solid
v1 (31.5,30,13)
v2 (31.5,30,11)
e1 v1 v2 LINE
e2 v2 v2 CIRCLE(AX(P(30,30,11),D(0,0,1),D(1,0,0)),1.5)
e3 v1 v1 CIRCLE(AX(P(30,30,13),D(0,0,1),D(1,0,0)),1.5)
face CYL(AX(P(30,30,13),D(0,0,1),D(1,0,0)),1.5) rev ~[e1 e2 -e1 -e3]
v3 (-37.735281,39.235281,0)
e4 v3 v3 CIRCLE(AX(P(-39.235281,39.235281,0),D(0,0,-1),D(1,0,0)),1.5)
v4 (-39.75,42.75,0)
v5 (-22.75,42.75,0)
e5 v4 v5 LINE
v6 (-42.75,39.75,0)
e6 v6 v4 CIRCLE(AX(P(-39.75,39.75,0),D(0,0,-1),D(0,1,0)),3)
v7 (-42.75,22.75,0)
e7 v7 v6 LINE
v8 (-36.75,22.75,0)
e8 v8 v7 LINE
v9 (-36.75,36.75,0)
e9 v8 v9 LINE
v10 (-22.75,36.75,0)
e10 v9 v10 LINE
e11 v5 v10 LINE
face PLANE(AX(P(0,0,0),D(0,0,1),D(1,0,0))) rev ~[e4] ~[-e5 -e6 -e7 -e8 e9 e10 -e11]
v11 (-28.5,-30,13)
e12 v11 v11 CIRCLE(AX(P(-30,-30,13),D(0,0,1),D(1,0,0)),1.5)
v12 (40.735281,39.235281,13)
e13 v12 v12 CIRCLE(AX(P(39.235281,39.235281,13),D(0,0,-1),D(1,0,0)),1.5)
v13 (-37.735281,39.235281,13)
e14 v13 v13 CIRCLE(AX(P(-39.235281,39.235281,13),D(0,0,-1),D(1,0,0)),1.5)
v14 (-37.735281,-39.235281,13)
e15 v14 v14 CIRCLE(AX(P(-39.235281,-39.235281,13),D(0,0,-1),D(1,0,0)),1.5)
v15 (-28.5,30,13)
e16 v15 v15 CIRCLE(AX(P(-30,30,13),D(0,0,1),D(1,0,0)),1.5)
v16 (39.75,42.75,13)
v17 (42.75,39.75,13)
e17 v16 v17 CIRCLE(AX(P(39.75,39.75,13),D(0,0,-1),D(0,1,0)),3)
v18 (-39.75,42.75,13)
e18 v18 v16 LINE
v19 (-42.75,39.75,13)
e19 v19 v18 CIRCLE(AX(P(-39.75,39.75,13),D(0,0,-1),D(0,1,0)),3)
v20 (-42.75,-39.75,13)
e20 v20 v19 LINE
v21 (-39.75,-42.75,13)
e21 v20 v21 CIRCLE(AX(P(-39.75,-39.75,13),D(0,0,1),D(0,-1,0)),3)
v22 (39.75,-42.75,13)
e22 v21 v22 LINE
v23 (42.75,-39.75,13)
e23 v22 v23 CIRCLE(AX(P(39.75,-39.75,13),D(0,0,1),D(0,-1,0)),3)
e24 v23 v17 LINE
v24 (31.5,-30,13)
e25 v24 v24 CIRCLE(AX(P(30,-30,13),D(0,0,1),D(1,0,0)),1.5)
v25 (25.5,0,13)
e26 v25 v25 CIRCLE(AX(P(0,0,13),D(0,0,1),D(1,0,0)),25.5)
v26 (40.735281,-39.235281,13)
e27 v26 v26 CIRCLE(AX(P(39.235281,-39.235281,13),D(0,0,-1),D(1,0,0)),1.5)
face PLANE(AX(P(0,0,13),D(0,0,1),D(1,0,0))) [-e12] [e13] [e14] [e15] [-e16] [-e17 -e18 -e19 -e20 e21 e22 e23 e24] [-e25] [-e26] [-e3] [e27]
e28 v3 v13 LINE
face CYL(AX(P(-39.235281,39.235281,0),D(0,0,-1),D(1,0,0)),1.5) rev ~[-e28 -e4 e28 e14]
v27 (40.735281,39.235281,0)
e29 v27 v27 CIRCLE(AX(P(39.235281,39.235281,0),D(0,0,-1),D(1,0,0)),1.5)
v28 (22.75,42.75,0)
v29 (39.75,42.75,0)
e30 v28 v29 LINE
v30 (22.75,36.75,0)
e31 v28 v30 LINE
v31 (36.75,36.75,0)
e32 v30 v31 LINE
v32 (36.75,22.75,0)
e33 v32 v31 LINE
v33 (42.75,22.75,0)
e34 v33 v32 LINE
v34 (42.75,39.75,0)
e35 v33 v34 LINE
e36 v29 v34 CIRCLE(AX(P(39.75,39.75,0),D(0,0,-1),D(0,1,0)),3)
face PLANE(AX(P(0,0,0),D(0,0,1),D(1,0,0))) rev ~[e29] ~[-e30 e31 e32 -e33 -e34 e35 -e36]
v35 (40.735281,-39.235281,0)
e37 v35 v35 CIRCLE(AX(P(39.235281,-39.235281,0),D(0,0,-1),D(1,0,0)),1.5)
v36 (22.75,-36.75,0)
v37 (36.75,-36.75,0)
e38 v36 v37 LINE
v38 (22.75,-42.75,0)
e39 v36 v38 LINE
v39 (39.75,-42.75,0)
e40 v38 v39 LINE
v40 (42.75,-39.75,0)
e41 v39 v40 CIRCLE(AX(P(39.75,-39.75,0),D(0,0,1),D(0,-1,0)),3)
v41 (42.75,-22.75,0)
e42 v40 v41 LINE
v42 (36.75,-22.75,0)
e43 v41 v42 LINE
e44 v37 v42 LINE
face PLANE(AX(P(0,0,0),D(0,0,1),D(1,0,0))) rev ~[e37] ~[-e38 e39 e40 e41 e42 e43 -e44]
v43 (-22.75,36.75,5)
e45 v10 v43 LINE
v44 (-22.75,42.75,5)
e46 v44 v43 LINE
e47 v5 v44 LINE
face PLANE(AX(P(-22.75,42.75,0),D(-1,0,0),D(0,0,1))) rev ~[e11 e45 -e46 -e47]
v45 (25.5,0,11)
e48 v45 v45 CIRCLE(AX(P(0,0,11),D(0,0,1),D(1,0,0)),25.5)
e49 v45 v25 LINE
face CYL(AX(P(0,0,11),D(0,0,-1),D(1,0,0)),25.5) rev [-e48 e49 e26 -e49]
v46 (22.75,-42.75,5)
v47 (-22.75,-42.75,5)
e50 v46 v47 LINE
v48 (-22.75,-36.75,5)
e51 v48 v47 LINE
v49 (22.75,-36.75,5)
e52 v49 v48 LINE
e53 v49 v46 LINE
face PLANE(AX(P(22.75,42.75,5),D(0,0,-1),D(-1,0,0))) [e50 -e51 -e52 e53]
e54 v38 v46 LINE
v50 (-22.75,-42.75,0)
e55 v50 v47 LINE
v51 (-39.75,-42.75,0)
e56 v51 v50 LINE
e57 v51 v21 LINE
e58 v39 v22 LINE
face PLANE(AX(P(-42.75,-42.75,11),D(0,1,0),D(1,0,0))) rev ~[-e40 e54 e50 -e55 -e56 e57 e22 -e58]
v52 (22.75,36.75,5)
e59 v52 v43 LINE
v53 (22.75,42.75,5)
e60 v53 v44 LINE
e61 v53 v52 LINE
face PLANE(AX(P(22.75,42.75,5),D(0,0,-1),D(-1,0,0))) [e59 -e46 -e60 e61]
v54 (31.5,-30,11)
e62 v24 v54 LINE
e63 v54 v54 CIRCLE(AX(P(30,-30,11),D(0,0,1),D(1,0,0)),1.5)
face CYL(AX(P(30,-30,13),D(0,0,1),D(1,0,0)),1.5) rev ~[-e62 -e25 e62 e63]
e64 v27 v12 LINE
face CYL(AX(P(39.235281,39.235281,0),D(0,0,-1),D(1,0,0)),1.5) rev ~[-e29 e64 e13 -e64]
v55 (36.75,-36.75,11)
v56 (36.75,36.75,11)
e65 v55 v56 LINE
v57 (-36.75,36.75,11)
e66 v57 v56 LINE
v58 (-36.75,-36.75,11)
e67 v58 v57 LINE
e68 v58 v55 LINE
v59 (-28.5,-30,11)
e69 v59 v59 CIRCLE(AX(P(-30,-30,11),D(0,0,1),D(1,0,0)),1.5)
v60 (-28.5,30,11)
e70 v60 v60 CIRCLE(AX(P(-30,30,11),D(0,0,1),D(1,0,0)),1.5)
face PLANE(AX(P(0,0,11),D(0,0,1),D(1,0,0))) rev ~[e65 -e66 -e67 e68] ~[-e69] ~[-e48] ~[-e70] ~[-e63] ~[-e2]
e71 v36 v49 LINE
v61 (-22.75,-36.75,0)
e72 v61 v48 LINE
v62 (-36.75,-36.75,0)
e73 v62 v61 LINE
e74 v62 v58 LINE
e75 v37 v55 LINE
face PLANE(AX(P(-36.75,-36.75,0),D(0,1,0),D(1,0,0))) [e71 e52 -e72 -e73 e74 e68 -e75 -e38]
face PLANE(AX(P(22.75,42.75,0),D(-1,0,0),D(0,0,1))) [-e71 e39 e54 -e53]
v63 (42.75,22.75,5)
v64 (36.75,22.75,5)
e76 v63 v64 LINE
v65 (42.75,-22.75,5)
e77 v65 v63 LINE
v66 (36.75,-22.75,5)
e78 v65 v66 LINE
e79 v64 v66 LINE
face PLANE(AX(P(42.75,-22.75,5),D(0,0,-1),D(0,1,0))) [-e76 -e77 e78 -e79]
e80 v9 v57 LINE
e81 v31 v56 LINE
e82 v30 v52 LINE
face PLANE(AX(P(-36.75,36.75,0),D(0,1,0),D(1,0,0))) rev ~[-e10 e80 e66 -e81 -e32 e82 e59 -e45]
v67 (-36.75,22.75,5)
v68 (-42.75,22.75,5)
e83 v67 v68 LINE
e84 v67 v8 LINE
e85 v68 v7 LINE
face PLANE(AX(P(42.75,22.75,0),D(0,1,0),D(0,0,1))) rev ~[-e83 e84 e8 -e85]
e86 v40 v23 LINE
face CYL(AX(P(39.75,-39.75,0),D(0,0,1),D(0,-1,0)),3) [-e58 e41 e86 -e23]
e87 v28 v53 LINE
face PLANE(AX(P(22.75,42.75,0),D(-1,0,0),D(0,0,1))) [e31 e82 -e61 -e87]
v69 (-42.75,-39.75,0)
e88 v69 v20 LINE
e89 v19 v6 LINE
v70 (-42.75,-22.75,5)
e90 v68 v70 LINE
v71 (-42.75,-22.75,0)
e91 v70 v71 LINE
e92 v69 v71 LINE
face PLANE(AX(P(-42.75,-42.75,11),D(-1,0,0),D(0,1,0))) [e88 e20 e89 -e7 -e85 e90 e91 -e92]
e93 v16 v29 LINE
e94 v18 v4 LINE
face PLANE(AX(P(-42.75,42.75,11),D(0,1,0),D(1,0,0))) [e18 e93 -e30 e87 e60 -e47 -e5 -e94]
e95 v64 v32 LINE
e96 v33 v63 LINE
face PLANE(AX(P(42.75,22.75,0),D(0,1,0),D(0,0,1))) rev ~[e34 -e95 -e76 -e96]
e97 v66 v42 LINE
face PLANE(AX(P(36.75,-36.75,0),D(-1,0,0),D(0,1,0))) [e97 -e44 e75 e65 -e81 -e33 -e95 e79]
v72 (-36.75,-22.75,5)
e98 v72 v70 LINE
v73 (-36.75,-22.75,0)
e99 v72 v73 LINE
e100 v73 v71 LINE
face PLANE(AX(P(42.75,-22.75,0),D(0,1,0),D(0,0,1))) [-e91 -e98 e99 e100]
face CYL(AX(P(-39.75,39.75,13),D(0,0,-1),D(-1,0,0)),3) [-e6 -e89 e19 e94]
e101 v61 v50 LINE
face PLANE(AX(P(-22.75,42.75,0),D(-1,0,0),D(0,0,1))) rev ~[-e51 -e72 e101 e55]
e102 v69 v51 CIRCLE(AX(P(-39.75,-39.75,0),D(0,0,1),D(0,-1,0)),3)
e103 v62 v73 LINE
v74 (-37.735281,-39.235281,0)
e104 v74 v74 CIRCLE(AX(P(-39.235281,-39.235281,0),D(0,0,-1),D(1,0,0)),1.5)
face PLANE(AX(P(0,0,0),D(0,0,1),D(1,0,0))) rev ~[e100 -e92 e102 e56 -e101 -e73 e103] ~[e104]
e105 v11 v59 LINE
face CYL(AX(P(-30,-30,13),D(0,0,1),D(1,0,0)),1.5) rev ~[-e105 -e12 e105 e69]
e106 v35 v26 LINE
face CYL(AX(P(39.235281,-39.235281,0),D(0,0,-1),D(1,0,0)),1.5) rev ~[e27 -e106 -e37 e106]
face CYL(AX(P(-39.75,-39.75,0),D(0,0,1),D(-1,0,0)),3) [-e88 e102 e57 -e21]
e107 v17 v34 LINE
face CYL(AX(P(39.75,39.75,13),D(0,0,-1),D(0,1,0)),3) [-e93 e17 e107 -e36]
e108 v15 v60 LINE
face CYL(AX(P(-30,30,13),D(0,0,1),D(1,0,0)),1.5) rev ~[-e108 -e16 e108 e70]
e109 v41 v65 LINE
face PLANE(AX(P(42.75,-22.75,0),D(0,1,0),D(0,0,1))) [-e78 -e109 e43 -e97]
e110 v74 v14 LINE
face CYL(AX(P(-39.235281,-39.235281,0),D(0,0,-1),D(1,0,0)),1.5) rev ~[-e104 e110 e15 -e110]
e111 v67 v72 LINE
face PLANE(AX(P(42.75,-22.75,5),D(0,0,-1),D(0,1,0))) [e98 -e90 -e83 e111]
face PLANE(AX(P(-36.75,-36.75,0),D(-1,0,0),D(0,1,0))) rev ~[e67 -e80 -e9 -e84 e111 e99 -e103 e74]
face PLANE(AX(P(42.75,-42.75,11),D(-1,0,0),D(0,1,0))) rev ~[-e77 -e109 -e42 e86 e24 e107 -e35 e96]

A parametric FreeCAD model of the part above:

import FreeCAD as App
import Part
import Sketcher
from FreeCAD import Vector


def edges_at(feature, points):
    """Names of the edges that pass closest to the given points."""
    edges = feature.Shape.Edges
    near = lambda p: min(range(len(edges)), key=lambda i: edges[i].distToShape(Part.Vertex(*p))[0])
    return sorted({f"Edge{near(p) + 1}" for p in points})

doc = App.newDocument("Part")
body = doc.addObject("PartDesign::Body", "Body")

sketch1 = body.newObject("Sketcher::SketchObject", "Sketch")
sketch1.AttachmentSupport = (doc.getObject("XY_Plane"), [""])
sketch1.MapMode = "FlatFace"
sketch1.addGeometry(Part.LineSegment(Vector(-43, 43, 0), Vector(-43, -43, 0)), False)
sketch1.addGeometry(Part.LineSegment(Vector(-43, -43, 0), Vector(43, -43, 0)), False)
sketch1.addGeometry(Part.LineSegment(Vector(43, -43, 0), Vector(43, 43, 0)), False)
sketch1.addGeometry(Part.LineSegment(Vector(43, 43, 0), Vector(-43, 43, 0)), False)
sketch1.addGeometry(Part.LineSegment(Vector(37, -37, 0), Vector(-37, -37, 0)), False)
sketch1.addGeometry(Part.LineSegment(Vector(-37, -37, 0), Vector(-37, 37, 0)), False)
sketch1.addGeometry(Part.LineSegment(Vector(-37, 37, 0), Vector(37, 37, 0)), False)
sketch1.addGeometry(Part.LineSegment(Vector(37, 37, 0), Vector(37, -37, 0)), False)
sketch1.addConstraint(Sketcher.Constraint("Coincident", 0, 2, 1, 1))
sketch1.addConstraint(Sketcher.Constraint("Coincident", 1, 2, 2, 1))
sketch1.addConstraint(Sketcher.Constraint("Coincident", 2, 2, 3, 1))
sketch1.addConstraint(Sketcher.Constraint("Coincident", 3, 2, 0, 1))
sketch1.addConstraint(Sketcher.Constraint("Coincident", 4, 2, 5, 1))
sketch1.addConstraint(Sketcher.Constraint("Coincident", 5, 2, 6, 1))
sketch1.addConstraint(Sketcher.Constraint("Coincident", 6, 2, 7, 1))
sketch1.addConstraint(Sketcher.Constraint("Coincident", 7, 2, 4, 1))
sketch1.addConstraint(Sketcher.Constraint("Vertical", 0))
sketch1.addConstraint(Sketcher.Constraint("Horizontal", 1))
sketch1.addConstraint(Sketcher.Constraint("Vertical", 2))
sketch1.addConstraint(Sketcher.Constraint("Horizontal", 3))
sketch1.addConstraint(Sketcher.Constraint("Horizontal", 4))
sketch1.addConstraint(Sketcher.Constraint("Vertical", 5))
sketch1.addConstraint(Sketcher.Constraint("Horizontal", 6))
sketch1.addConstraint(Sketcher.Constraint("Vertical", 7))
sketch1.addConstraint(Sketcher.Constraint("Symmetric", 0, 2, 2, 2, -1, 1))
sketch1.addConstraint(Sketcher.Constraint("Symmetric", 4, 2, 6, 2, -1, 1))
sketch1.addConstraint(Sketcher.Constraint("Equal", 3, 0))
sketch1.addConstraint(Sketcher.Constraint("Equal", 6, 5))
sketch1.addConstraint(Sketcher.Constraint("DistanceX", 1, 1, 1, 2, 85.5))
sketch1.addConstraint(Sketcher.Constraint("DistanceX", 4, 2, 4, 1, 73.5))
pad1 = body.newObject("PartDesign::Pad", "Pad")
pad1.Profile = sketch1
pad1.Length = 11

sketch2 = body.newObject("Sketcher::SketchObject", "Sketch001")
sketch2.AttachmentSupport = (doc.getObject("XY_Plane"), [""])
sketch2.MapMode = "FlatFace"
sketch2.AttachmentOffset = App.Placement(Vector(0, 0, 11), App.Rotation())
sketch2.addGeometry(Part.LineSegment(Vector(-43, 43, 0), Vector(-43, -43, 0)), False)
sketch2.addGeometry(Part.LineSegment(Vector(-43, -43, 0), Vector(43, -43, 0)), False)
sketch2.addGeometry(Part.LineSegment(Vector(43, -43, 0), Vector(43, 43, 0)), False)
sketch2.addGeometry(Part.LineSegment(Vector(43, 43, 0), Vector(-43, 43, 0)), False)
sketch2.addGeometry(Part.Circle(Vector(0, 0, 0), Vector(0, 0, 1), 26), False)
sketch2.addConstraint(Sketcher.Constraint("Coincident", 0, 2, 1, 1))
sketch2.addConstraint(Sketcher.Constraint("Coincident", 1, 2, 2, 1))
sketch2.addConstraint(Sketcher.Constraint("Coincident", 2, 2, 3, 1))
sketch2.addConstraint(Sketcher.Constraint("Coincident", 3, 2, 0, 1))
sketch2.addConstraint(Sketcher.Constraint("Vertical", 0))
sketch2.addConstraint(Sketcher.Constraint("Horizontal", 1))
sketch2.addConstraint(Sketcher.Constraint("Vertical", 2))
sketch2.addConstraint(Sketcher.Constraint("Horizontal", 3))
sketch2.addConstraint(Sketcher.Constraint("Coincident", 4, 3, -1, 1))
sketch2.addConstraint(Sketcher.Constraint("Symmetric", 0, 2, 2, 2, -1, 1))
sketch2.addConstraint(Sketcher.Constraint("Equal", 3, 0))
sketch2.addConstraint(Sketcher.Constraint("Diameter", 4, 51.0))
sketch2.addConstraint(Sketcher.Constraint("DistanceX", 1, 1, 1, 2, 85.5))
pad2 = body.newObject("PartDesign::Pad", "Pad001")
pad2.Profile = sketch2
pad2.Length = 2

sketch3 = body.newObject("Sketcher::SketchObject", "Sketch002")
sketch3.AttachmentSupport = (doc.getObject("XY_Plane"), [""])
sketch3.MapMode = "FlatFace"
sketch3.addGeometry(Part.Circle(Vector(-39.2, -39.2, 0), Vector(0, 0, 1), 1.5), False)
sketch3.addGeometry(Part.Circle(Vector(39.2, -39.2, 0), Vector(0, 0, 1), 1.5), False)
sketch3.addGeometry(Part.Circle(Vector(39.2, 39.2, 0), Vector(0, 0, 1), 1.5), False)
sketch3.addGeometry(Part.Circle(Vector(-39.2, 39.2, 0), Vector(0, 0, 1), 1.5), False)
sketch3.addConstraint(Sketcher.Constraint("Equal", 0, 1))
sketch3.addConstraint(Sketcher.Constraint("Equal", 1, 2))
sketch3.addConstraint(Sketcher.Constraint("Equal", 2, 3))
sketch3.addConstraint(Sketcher.Constraint("Symmetric", 0, 3, 2, 3, -1, 1))
sketch3.addConstraint(Sketcher.Constraint("Symmetric", 1, 3, 3, 3, -1, 1))
sketch3.addConstraint(Sketcher.Constraint("Symmetric", 0, 3, 1, 3, -2))
sketch3.addConstraint(Sketcher.Constraint("Diameter", 0, 3.0))
sketch3.addConstraint(Sketcher.Constraint("DistanceX", 0, 3, -1, 1, 39.235281))
sketch3.addConstraint(Sketcher.Constraint("DistanceY", 0, 3, -1, 1, 39.235281))
pocket1 = body.newObject("PartDesign::Pocket", "Pocket")
pocket1.Profile = sketch3
pocket1.Type = "ThroughAll"
pocket1.Reversed = True

sketch4 = body.newObject("Sketcher::SketchObject", "Sketch003")
sketch4.AttachmentSupport = (doc.getObject("XY_Plane"), [""])
sketch4.MapMode = "FlatFace"
sketch4.AttachmentOffset = App.Placement(Vector(0, 0, 13), App.Rotation())
sketch4.addGeometry(Part.Circle(Vector(-30, 30, 0), Vector(0, 0, 1), 1.5), False)
sketch4.addGeometry(Part.Circle(Vector(30, 30, 0), Vector(0, 0, 1), 1.5), False)
sketch4.addGeometry(Part.Circle(Vector(30, -30, 0), Vector(0, 0, 1), 1.5), False)
sketch4.addGeometry(Part.Circle(Vector(-30, -30, 0), Vector(0, 0, 1), 1.5), False)
sketch4.addConstraint(Sketcher.Constraint("Equal", 0, 1))
sketch4.addConstraint(Sketcher.Constraint("Equal", 1, 2))
sketch4.addConstraint(Sketcher.Constraint("Equal", 2, 3))
sketch4.addConstraint(Sketcher.Constraint("Symmetric", 0, 3, 2, 3, -1, 1))
sketch4.addConstraint(Sketcher.Constraint("Symmetric", 1, 3, 3, 3, -1, 1))
sketch4.addConstraint(Sketcher.Constraint("Symmetric", 0, 3, 1, 3, -2))
sketch4.addConstraint(Sketcher.Constraint("Diameter", 0, 3.0))
sketch4.addConstraint(Sketcher.Constraint("DistanceX", 0, 3, -1, 1, 30.0))
sketch4.addConstraint(Sketcher.Constraint("DistanceY", -1, 1, 0, 3, 30.0))
pocket2 = body.newObject("PartDesign::Pocket", "Pocket001")
pocket2.Profile = sketch4
pocket2.Length = 5
doc.recompute()

fillet = body.newObject("PartDesign::Fillet", "Fillet")
fillet.Base = (pocket2, edges_at(pocket2, [
    (42.75, 42.75, 6.5),
    (-42.75, 42.75, 6.5),
    (-42.75, -42.75, 6.5),
    (42.75, -42.75, 6.5),
]))
fillet.Radius = 3

sketch5 = body.newObject("Sketcher::SketchObject", "Sketch004")
sketch5.AttachmentSupport = (doc.getObject("XZ_Plane"), [""])
sketch5.MapMode = "FlatFace"
sketch5.AttachmentOffset = App.Placement(Vector(0, 0, -42.75), App.Rotation())
sketch5.addGeometry(Part.LineSegment(Vector(23, 5, 0), Vector(23, 0, 0)), False)
sketch5.addGeometry(Part.LineSegment(Vector(23, 0, 0), Vector(-23, 0, 0)), False)
sketch5.addGeometry(Part.LineSegment(Vector(-23, 0, 0), Vector(-23, 5, 0)), False)
sketch5.addGeometry(Part.LineSegment(Vector(-23, 5, 0), Vector(23, 5, 0)), False)
sketch5.addConstraint(Sketcher.Constraint("Coincident", 0, 2, 1, 1))
sketch5.addConstraint(Sketcher.Constraint("Coincident", 1, 2, 2, 1))
sketch5.addConstraint(Sketcher.Constraint("Coincident", 2, 2, 3, 1))
sketch5.addConstraint(Sketcher.Constraint("Coincident", 3, 2, 0, 1))
sketch5.addConstraint(Sketcher.Constraint("Vertical", 0))
sketch5.addConstraint(Sketcher.Constraint("Horizontal", 1))
sketch5.addConstraint(Sketcher.Constraint("Vertical", 2))
sketch5.addConstraint(Sketcher.Constraint("Horizontal", 3))
sketch5.addConstraint(Sketcher.Constraint("Symmetric", 0, 2, 1, 2, -1, 1))
sketch5.addConstraint(Sketcher.Constraint("DistanceY", 0, 2, 0, 1, 5.0))
sketch5.addConstraint(Sketcher.Constraint("DistanceX", 1, 2, 1, 1, 45.5))
pocket3 = body.newObject("PartDesign::Pocket", "Pocket002")
pocket3.Profile = sketch5
pocket3.Type = "ThroughAll"
pocket3.Midplane = True

sketch6 = body.newObject("Sketcher::SketchObject", "Sketch005")
sketch6.AttachmentSupport = (doc.getObject("YZ_Plane"), [""])
sketch6.MapMode = "FlatFace"
sketch6.AttachmentOffset = App.Placement(Vector(0, 0, 42.75), App.Rotation())
sketch6.addGeometry(Part.LineSegment(Vector(-23, 5, 0), Vector(-23, 0, 0)), False)
sketch6.addGeometry(Part.LineSegment(Vector(-23, 0, 0), Vector(23, 0, 0)), False)
sketch6.addGeometry(Part.LineSegment(Vector(23, 0, 0), Vector(23, 5, 0)), False)
sketch6.addGeometry(Part.LineSegment(Vector(23, 5, 0), Vector(-23, 5, 0)), False)
sketch6.addConstraint(Sketcher.Constraint("Coincident", 0, 2, 1, 1))
sketch6.addConstraint(Sketcher.Constraint("Coincident", 1, 2, 2, 1))
sketch6.addConstraint(Sketcher.Constraint("Coincident", 2, 2, 3, 1))
sketch6.addConstraint(Sketcher.Constraint("Coincident", 3, 2, 0, 1))
sketch6.addConstraint(Sketcher.Constraint("Vertical", 0))
sketch6.addConstraint(Sketcher.Constraint("Horizontal", 1))
sketch6.addConstraint(Sketcher.Constraint("Vertical", 2))
sketch6.addConstraint(Sketcher.Constraint("Horizontal", 3))
sketch6.addConstraint(Sketcher.Constraint("Symmetric", 0, 2, 1, 2, -1, 1))
sketch6.addConstraint(Sketcher.Constraint("DistanceY", 0, 2, 0, 1, 5.0))
sketch6.addConstraint(Sketcher.Constraint("DistanceX", 1, 1, 1, 2, 45.5))
pocket4 = body.newObject("PartDesign::Pocket", "Pocket003")
pocket4.Profile = sketch6
pocket4.Type = "ThroughAll"

doc.recompute()
